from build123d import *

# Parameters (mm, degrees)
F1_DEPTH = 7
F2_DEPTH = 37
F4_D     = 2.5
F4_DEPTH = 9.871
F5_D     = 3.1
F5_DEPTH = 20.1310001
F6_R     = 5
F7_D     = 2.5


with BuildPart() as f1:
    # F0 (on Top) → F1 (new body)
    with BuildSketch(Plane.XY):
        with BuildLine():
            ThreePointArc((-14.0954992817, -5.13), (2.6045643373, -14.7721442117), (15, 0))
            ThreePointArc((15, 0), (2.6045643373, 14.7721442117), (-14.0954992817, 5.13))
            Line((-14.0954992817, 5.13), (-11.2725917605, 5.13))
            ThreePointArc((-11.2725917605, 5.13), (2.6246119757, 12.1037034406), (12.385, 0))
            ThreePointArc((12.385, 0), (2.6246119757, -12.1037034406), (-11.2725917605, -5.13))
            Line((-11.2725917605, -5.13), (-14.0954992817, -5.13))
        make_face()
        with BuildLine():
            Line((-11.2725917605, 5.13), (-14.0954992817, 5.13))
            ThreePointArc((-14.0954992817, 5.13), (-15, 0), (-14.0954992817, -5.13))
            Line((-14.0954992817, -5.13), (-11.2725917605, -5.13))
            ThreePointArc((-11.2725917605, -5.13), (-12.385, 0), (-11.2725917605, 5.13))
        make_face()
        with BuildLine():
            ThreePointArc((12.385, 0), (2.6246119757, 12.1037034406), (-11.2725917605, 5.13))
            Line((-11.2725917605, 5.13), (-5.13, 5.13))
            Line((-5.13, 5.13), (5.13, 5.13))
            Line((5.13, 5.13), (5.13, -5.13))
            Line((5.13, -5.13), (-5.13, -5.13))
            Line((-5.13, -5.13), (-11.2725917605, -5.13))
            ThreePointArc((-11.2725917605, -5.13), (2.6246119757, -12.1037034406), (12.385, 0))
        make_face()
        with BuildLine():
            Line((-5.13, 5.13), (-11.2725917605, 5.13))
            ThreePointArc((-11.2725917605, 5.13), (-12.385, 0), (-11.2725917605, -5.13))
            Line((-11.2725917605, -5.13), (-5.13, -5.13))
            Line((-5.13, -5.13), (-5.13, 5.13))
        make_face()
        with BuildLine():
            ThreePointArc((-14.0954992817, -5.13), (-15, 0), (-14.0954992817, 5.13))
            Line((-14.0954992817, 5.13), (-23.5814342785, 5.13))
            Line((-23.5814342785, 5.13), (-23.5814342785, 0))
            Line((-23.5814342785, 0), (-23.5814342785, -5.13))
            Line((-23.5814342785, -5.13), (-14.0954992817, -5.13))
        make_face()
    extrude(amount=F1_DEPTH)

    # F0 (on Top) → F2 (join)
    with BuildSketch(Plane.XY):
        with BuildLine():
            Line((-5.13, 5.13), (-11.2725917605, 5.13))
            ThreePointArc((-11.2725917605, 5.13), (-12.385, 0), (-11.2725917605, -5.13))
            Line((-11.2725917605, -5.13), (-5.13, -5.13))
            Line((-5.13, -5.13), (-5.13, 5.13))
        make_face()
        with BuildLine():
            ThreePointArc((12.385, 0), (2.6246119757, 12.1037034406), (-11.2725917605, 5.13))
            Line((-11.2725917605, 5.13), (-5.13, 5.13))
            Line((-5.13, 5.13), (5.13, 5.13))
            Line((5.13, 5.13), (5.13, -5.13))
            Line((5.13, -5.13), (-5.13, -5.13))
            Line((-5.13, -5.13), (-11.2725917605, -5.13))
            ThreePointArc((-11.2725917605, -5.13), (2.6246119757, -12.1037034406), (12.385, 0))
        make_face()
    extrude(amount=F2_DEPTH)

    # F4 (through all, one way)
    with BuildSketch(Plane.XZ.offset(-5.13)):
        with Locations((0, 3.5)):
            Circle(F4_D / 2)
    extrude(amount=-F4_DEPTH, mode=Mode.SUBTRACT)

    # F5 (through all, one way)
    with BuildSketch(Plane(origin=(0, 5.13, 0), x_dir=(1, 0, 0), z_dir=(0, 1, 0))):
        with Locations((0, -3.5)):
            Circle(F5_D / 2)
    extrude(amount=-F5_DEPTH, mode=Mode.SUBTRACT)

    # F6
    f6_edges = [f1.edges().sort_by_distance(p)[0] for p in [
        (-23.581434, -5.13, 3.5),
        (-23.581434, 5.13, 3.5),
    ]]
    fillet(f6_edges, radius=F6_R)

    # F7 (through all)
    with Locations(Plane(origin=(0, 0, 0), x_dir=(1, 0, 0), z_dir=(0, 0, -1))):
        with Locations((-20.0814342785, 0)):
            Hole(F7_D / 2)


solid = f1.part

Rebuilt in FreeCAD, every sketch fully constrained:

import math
import FreeCAD as App
import Part
import Sketcher
Q = App.Units.Quantity


def edges_at(feature, points):
    """Names of the edges that pass closest to the given points."""
    edges = feature.Shape.Edges
    near = lambda p: min(range(len(edges)), key=lambda i: edges[i].distToShape(Part.Vertex(*p))[0])
    return sorted({f"Edge{near(p) + 1}" for p in points})

doc = App.newDocument("Part")
body = doc.addObject("PartDesign::Body", "Body")

# Sketch on XY plane
sketch1 = doc.addObject("Sketcher::SketchObject", "Sketch")
body.addObject(sketch1)
sketch1.AttachmentSupport = (doc.XY_Plane, [""])
sketch1.MapMode = "FlatFace"
sketch1.addGeometry([
    Part.ArcOfCircle(Part.Circle(App.Vector(0, 0, 0), App.Vector(0, 0, 1), 15), math.radians(-160), math.radians(0)),  # 0
    Part.ArcOfCircle(Part.Circle(App.Vector(0, 0, 0), App.Vector(0, 0, 1), 15), math.radians(0), math.radians(160)),  # 1
    Part.LineSegment(App.Vector(-14, 5, 0), App.Vector(-24, 5, 0)),  # 2
    Part.LineSegment(App.Vector(-24, 5, 0), App.Vector(-24, -5, 0)),  # 3
    Part.LineSegment(App.Vector(-24, -5, 0), App.Vector(-14, -5, 0)),  # 4
    Part.LineSegment(App.Vector(-5, 5, 0), App.Vector(5, 5, 0)),  # 5
    Part.LineSegment(App.Vector(5, 5, 0), App.Vector(5, -5, 0)),  # 6
    Part.LineSegment(App.Vector(5, -5, 0), App.Vector(-5, -5, 0)),  # 7
    Part.LineSegment(App.Vector(-5, -5, 0), App.Vector(-5, 5, 0)),  # 8
], False)
sketch1.addConstraint([
    Sketcher.Constraint("Tangent", 0, 2, 1, 1),
    Sketcher.Constraint("Coincident", 1, 2, 2, 1),
    Sketcher.Constraint("Coincident", 2, 2, 3, 1),
    Sketcher.Constraint("Coincident", 3, 2, 4, 1),
    Sketcher.Constraint("Coincident", 4, 2, 0, 1),
    Sketcher.Constraint("Coincident", 5, 2, 6, 1),
    Sketcher.Constraint("Coincident", 6, 2, 7, 1),
    Sketcher.Constraint("Coincident", 7, 2, 8, 1),
    Sketcher.Constraint("Coincident", 8, 2, 5, 1),
    Sketcher.Constraint("Horizontal", 2),
    Sketcher.Constraint("Vertical", 3),
    Sketcher.Constraint("Horizontal", 4),
    Sketcher.Constraint("Horizontal", 5),
    Sketcher.Constraint("Vertical", 6),
    Sketcher.Constraint("Horizontal", 7),
    Sketcher.Constraint("Vertical", 8),
    Sketcher.Constraint("Coincident", 0, 3, -1, 1),
    Sketcher.Constraint("Equal", 0, 1),
    Sketcher.Constraint("Symmetric", 5, 2, 7, 2, -1, 1),
    Sketcher.Constraint("PointOnObject", 0, 2, -1),
    Sketcher.Constraint("Horizontal", 2, 2, 5, 2),
    Sketcher.Constraint("Horizontal", 4, 2, 6, 2),
    Sketcher.Constraint("Equal", 7, 3),
    Sketcher.Constraint("Radius", 0, Q("15 mm")),
    Sketcher.Constraint("DistanceX", 5, 1, 5, 2, Q("10.26 mm")),
    Sketcher.Constraint("DistanceX", 2, 2, 2, 1, Q("9.485935 mm")),
])
pad1 = doc.addObject("PartDesign::Pad", "Pad")
body.addObject(pad1)
pad1.Profile = sketch1
pad1.Length = 7

# Sketch on XY plane
sketch2 = doc.addObject("Sketcher::SketchObject", "Sketch001")
body.addObject(sketch2)
sketch2.AttachmentSupport = (doc.XY_Plane, [""])
sketch2.MapMode = "FlatFace"
sketch2.addGeometry([
    Part.ArcOfCircle(Part.Circle(App.Vector(0, 0, 0), App.Vector(0, 0, 1), 12), math.radians(156), math.radians(204)),  # 0
    Part.ArcOfCircle(Part.Circle(App.Vector(0, 0, 0), App.Vector(0, 0, 1), 12), math.radians(-156), math.radians(0)),  # 1
    Part.ArcOfCircle(Part.Circle(App.Vector(0, 0, 0), App.Vector(0, 0, 1), 12), math.radians(0), math.radians(156)),  # 2
    Part.LineSegment(App.Vector(-5, -5, 0), App.Vector(-5, 5, 0)),  # 3
    Part.LineSegment(App.Vector(-5, 5, 0), App.Vector(5, 5, 0)),  # 4
    Part.LineSegment(App.Vector(5, 5, 0), App.Vector(5, -5, 0)),  # 5
    Part.LineSegment(App.Vector(5, -5, 0), App.Vector(-5, -5, 0)),  # 6
], False)
sketch2.addConstraint([
    Sketcher.Constraint("Tangent", 0, 2, 1, 1),
    Sketcher.Constraint("Tangent", 1, 2, 2, 1),
    Sketcher.Constraint("Tangent", 2, 2, 0, 1),
    Sketcher.Constraint("Coincident", 3, 2, 4, 1),
    Sketcher.Constraint("Coincident", 4, 2, 5, 1),
    Sketcher.Constraint("Coincident", 5, 2, 6, 1),
    Sketcher.Constraint("Coincident", 6, 2, 3, 1),
    Sketcher.Constraint("Vertical", 3),
    Sketcher.Constraint("Horizontal", 4),
    Sketcher.Constraint("Vertical", 5),
    Sketcher.Constraint("Horizontal", 6),
    Sketcher.Constraint("Coincident", 0, 3, -1, 1),
    Sketcher.Constraint("Symmetric", 3, 2, 5, 2, -1, 1),
    Sketcher.Constraint("PointOnObject", 1, 2, -1),
    Sketcher.Constraint("Horizontal", 2, 2, 3, 2),
    Sketcher.Constraint("Horizontal", 0, 2, 5, 2),
    Sketcher.Constraint("Equal", 6, 3),
    Sketcher.Constraint("Radius", 0, Q("12.385 mm")),
    Sketcher.Constraint("DistanceX", 4, 1, 4, 2, Q("10.26 mm")),
])
pad2 = doc.addObject("PartDesign::Pad", "Pad001")
body.addObject(pad2)
pad2.Profile = sketch2
pad2.Length = 37

# Sketch on XZ plane
sketch3 = doc.addObject("Sketcher::SketchObject", "Sketch002")
body.addObject(sketch3)
sketch3.AttachmentSupport = (doc.XZ_Plane, [""])
sketch3.MapMode = "FlatFace"
sketch3.AttachmentOffset = App.Placement(App.Vector(0, 0, -5.13), App.Rotation())
sketch3.addGeometry(Part.Circle(App.Vector(0, 3.5, 0), App.Vector(0, 0, 1), 1.2), False)
sketch3.addConstraint([
    Sketcher.Constraint("PointOnObject", 0, 3, -2),
    Sketcher.Constraint("Diameter", 0, Q("2.5 mm")),
    Sketcher.Constraint("DistanceY", -1, 1, 0, 3, Q("3.5 mm")),
])
pocket1 = doc.addObject("PartDesign::Pocket", "Pocket")
body.addObject(pocket1)
pocket1.Profile = sketch3
pocket1.Type = "ThroughAll"

# Sketch on XZ plane
sketch4 = doc.addObject("Sketcher::SketchObject", "Sketch003")
body.addObject(sketch4)
sketch4.AttachmentSupport = (doc.XZ_Plane, [""])
sketch4.MapMode = "FlatFace"
sketch4.AttachmentOffset = App.Placement(App.Vector(0, 0, -5.13), App.Rotation())
sketch4.addGeometry(Part.Circle(App.Vector(0, 3.5, 0), App.Vector(0, 0, 1), 1.6), False)
sketch4.addConstraint([
    Sketcher.Constraint("PointOnObject", 0, 3, -2),
    Sketcher.Constraint("Diameter", 0, Q("3.1 mm")),
    Sketcher.Constraint("DistanceY", -1, 1, 0, 3, Q("3.5 mm")),
])
pocket2 = doc.addObject("PartDesign::Pocket", "Pocket001")
body.addObject(pocket2)
pocket2.Profile = sketch4
pocket2.Type = "ThroughAll"
pocket2.Reversed = True
doc.recompute()

fillet = doc.addObject("PartDesign::Fillet", "Fillet")
body.addObject(fillet)
fillet.Base = (pocket2, edges_at(pocket2, [(-23.581, -5.13, 3.5), (-23.581, 5.13, 3.5)]))
fillet.Radius = 5

# Sketch on XY plane
sketch5 = doc.addObject("Sketcher::SketchObject", "Sketch004")
body.addObject(sketch5)
sketch5.AttachmentSupport = (doc.XY_Plane, [""])
sketch5.MapMode = "FlatFace"
sketch5.addGeometry(Part.Circle(App.Vector(-20.1, 0, 0), App.Vector(0, 0, 1), 1.2), False)
sketch5.addConstraint([
    Sketcher.Constraint("PointOnObject", 0, 3, -1),
    Sketcher.Constraint("Diameter", 0, Q("2.5 mm")),
    Sketcher.Constraint("DistanceX", 0, 3, -1, 1, Q("20.081434 mm")),
])
doc.recompute()
hole = doc.addObject("PartDesign::Hole", "Hole")
body.addObject(hole)
hole.Profile = sketch5
hole.ThreadType = "None"
hole.Diameter = 2.5
hole.DepthType = "ThroughAll"
hole.Reversed = True

doc.recompute()
